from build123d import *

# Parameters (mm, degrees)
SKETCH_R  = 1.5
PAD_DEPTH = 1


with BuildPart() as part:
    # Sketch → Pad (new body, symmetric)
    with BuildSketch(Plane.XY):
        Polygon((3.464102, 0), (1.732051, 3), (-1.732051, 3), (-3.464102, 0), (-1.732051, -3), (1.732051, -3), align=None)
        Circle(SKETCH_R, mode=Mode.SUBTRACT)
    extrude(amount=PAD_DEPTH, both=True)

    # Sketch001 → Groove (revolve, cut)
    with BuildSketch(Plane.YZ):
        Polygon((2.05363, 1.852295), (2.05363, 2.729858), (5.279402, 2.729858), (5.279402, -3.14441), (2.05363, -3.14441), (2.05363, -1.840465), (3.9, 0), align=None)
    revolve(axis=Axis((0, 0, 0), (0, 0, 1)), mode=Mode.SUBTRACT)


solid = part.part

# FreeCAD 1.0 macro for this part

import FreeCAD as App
import Part
import Sketcher
from FreeCAD import Vector
Q = App.Units.Quantity

doc = App.newDocument("Part")
body = doc.addObject("PartDesign::Body", "Body")

sketch1 = body.newObject("Sketcher::SketchObject", "Sketch")
sketch1.AttachmentSupport = (doc.getObject("XY_Plane"), [""])
sketch1.MapMode = "FlatFace"
sketch1.addGeometry([
    Part.LineSegment(Vector(3.464102, 0, 0), Vector(1.732051, 3, 0)),
    Part.LineSegment(Vector(1.732051, 3, 0), Vector(-1.732051, 3, 0)),
    Part.LineSegment(Vector(-1.732051, 3, 0), Vector(-3.464102, 0, 0)),
    Part.LineSegment(Vector(-3.464102, 0, 0), Vector(-1.732051, -3, 0)),
    Part.LineSegment(Vector(-1.732051, -3, 0), Vector(1.732051, -3, 0)),
    Part.LineSegment(Vector(1.732051, -3, 0), Vector(3.464102, 0, 0)),
    Part.Circle(Vector(0, 0, 0), Vector(0, 0, 1), 1.5),
], False)
sketch1.addConstraint([
    Sketcher.Constraint("Coincident", 0, 2, 1, 1),
    Sketcher.Constraint("Coincident", 1, 2, 2, 1),
    Sketcher.Constraint("Coincident", 2, 2, 3, 1),
    Sketcher.Constraint("Coincident", 3, 2, 4, 1),
    Sketcher.Constraint("Coincident", 4, 2, 5, 1),
    Sketcher.Constraint("Coincident", 5, 2, 0, 1),
    Sketcher.Constraint("Horizontal", 1),
    Sketcher.Constraint("Horizontal", 4),
    Sketcher.Constraint("Coincident", 6, 3, -1, 1),
    Sketcher.Constraint("Symmetric", 0, 2, 3, 2, -1, 1),
    Sketcher.Constraint("Symmetric", 2, 2, 5, 2, -1, 1),
    Sketcher.Constraint("PointOnObject", 2, 2, -1),
    Sketcher.Constraint("Parallel", 2, 5),
    Sketcher.Constraint("Vertical", 1, 2, 3, 2),
    Sketcher.Constraint("Diameter", 6, Q("3 mm")),
    Sketcher.Constraint("Angle", 0, Q("120.000003 deg")),
    Sketcher.Constraint("DistanceY", -1, 1, 0, 2, Q("3 mm")),
    Sketcher.Constraint("DistanceX", 1, 2, 1, 1, Q("3.464102 mm")),
])
pad1 = body.newObject("PartDesign::Pad", "Pad")
pad1.Profile = sketch1
pad1.Length = 2
pad1.Midplane = True

sketch2 = body.newObject("Sketcher::SketchObject", "Sketch001")
sketch2.AttachmentSupport = (doc.getObject("YZ_Plane"), [""])
sketch2.MapMode = "FlatFace"
sketch2.addGeometry([
    Part.LineSegment(Vector(2.05363, 2.729858, 0), Vector(2.05363, 1.852295, 0)),
    Part.LineSegment(Vector(2.05363, 1.852295, 0), Vector(3.9, 0, 0)),
    Part.LineSegment(Vector(3.9, 0, 0), Vector(2.05363, -1.840465, 0)),
    Part.LineSegment(Vector(2.05363, -1.840465, 0), Vector(2.05363, -3.14441, 0)),
    Part.LineSegment(Vector(2.05363, -3.14441, 0), Vector(5.279402, -3.14441, 0)),
    Part.LineSegment(Vector(5.279402, -3.14441, 0), Vector(5.279402, 2.729858, 0)),
    Part.LineSegment(Vector(5.279402, 2.729858, 0), Vector(2.05363, 2.729858, 0)),
], False)
sketch2.addConstraint([
    Sketcher.Constraint("Coincident", 0, 2, 1, 1),
    Sketcher.Constraint("Coincident", 1, 2, 2, 1),
    Sketcher.Constraint("Coincident", 2, 2, 3, 1),
    Sketcher.Constraint("Coincident", 3, 2, 4, 1),
    Sketcher.Constraint("Coincident", 4, 2, 5, 1),
    Sketcher.Constraint("Coincident", 5, 2, 6, 1),
    Sketcher.Constraint("Coincident", 6, 2, 0, 1),
    Sketcher.Constraint("Vertical", 0),
    Sketcher.Constraint("Vertical", 3),
    Sketcher.Constraint("Horizontal", 4),
    Sketcher.Constraint("Vertical", 5),
    Sketcher.Constraint("Horizontal", 6),
    Sketcher.Constraint("PointOnObject", 1, 2, -1),
    Sketcher.Constraint("Perpendicular", 1, 2),
    Sketcher.Constraint("Vertical", 0, 2, 2, 2),
    Sketcher.Constraint("DistanceX", -1, 1, 1, 2, Q("3.9 mm")),
    Sketcher.Constraint("DistanceY", 5, 1, 5, 2, Q("5.874268 mm")),
    Sketcher.Constraint("Distance", 2, Q("2.606989 mm")),
    Sketcher.Constraint("DistanceX", 4, 1, 4, 2, Q("3.225772 mm")),
    Sketcher.Constraint("DistanceY", 0, 2, 0, 1, Q("0.877563 mm")),
    Sketcher.Constraint("DistanceY", 3, 2, 3, 1, Q("1.303945 mm")),
])
groove = body.newObject("PartDesign::Groove", "Groove")
groove.Profile = sketch2
groove.ReferenceAxis = (sketch2, ["V_Axis"])
groove.Angle = 360

doc.recompute()
